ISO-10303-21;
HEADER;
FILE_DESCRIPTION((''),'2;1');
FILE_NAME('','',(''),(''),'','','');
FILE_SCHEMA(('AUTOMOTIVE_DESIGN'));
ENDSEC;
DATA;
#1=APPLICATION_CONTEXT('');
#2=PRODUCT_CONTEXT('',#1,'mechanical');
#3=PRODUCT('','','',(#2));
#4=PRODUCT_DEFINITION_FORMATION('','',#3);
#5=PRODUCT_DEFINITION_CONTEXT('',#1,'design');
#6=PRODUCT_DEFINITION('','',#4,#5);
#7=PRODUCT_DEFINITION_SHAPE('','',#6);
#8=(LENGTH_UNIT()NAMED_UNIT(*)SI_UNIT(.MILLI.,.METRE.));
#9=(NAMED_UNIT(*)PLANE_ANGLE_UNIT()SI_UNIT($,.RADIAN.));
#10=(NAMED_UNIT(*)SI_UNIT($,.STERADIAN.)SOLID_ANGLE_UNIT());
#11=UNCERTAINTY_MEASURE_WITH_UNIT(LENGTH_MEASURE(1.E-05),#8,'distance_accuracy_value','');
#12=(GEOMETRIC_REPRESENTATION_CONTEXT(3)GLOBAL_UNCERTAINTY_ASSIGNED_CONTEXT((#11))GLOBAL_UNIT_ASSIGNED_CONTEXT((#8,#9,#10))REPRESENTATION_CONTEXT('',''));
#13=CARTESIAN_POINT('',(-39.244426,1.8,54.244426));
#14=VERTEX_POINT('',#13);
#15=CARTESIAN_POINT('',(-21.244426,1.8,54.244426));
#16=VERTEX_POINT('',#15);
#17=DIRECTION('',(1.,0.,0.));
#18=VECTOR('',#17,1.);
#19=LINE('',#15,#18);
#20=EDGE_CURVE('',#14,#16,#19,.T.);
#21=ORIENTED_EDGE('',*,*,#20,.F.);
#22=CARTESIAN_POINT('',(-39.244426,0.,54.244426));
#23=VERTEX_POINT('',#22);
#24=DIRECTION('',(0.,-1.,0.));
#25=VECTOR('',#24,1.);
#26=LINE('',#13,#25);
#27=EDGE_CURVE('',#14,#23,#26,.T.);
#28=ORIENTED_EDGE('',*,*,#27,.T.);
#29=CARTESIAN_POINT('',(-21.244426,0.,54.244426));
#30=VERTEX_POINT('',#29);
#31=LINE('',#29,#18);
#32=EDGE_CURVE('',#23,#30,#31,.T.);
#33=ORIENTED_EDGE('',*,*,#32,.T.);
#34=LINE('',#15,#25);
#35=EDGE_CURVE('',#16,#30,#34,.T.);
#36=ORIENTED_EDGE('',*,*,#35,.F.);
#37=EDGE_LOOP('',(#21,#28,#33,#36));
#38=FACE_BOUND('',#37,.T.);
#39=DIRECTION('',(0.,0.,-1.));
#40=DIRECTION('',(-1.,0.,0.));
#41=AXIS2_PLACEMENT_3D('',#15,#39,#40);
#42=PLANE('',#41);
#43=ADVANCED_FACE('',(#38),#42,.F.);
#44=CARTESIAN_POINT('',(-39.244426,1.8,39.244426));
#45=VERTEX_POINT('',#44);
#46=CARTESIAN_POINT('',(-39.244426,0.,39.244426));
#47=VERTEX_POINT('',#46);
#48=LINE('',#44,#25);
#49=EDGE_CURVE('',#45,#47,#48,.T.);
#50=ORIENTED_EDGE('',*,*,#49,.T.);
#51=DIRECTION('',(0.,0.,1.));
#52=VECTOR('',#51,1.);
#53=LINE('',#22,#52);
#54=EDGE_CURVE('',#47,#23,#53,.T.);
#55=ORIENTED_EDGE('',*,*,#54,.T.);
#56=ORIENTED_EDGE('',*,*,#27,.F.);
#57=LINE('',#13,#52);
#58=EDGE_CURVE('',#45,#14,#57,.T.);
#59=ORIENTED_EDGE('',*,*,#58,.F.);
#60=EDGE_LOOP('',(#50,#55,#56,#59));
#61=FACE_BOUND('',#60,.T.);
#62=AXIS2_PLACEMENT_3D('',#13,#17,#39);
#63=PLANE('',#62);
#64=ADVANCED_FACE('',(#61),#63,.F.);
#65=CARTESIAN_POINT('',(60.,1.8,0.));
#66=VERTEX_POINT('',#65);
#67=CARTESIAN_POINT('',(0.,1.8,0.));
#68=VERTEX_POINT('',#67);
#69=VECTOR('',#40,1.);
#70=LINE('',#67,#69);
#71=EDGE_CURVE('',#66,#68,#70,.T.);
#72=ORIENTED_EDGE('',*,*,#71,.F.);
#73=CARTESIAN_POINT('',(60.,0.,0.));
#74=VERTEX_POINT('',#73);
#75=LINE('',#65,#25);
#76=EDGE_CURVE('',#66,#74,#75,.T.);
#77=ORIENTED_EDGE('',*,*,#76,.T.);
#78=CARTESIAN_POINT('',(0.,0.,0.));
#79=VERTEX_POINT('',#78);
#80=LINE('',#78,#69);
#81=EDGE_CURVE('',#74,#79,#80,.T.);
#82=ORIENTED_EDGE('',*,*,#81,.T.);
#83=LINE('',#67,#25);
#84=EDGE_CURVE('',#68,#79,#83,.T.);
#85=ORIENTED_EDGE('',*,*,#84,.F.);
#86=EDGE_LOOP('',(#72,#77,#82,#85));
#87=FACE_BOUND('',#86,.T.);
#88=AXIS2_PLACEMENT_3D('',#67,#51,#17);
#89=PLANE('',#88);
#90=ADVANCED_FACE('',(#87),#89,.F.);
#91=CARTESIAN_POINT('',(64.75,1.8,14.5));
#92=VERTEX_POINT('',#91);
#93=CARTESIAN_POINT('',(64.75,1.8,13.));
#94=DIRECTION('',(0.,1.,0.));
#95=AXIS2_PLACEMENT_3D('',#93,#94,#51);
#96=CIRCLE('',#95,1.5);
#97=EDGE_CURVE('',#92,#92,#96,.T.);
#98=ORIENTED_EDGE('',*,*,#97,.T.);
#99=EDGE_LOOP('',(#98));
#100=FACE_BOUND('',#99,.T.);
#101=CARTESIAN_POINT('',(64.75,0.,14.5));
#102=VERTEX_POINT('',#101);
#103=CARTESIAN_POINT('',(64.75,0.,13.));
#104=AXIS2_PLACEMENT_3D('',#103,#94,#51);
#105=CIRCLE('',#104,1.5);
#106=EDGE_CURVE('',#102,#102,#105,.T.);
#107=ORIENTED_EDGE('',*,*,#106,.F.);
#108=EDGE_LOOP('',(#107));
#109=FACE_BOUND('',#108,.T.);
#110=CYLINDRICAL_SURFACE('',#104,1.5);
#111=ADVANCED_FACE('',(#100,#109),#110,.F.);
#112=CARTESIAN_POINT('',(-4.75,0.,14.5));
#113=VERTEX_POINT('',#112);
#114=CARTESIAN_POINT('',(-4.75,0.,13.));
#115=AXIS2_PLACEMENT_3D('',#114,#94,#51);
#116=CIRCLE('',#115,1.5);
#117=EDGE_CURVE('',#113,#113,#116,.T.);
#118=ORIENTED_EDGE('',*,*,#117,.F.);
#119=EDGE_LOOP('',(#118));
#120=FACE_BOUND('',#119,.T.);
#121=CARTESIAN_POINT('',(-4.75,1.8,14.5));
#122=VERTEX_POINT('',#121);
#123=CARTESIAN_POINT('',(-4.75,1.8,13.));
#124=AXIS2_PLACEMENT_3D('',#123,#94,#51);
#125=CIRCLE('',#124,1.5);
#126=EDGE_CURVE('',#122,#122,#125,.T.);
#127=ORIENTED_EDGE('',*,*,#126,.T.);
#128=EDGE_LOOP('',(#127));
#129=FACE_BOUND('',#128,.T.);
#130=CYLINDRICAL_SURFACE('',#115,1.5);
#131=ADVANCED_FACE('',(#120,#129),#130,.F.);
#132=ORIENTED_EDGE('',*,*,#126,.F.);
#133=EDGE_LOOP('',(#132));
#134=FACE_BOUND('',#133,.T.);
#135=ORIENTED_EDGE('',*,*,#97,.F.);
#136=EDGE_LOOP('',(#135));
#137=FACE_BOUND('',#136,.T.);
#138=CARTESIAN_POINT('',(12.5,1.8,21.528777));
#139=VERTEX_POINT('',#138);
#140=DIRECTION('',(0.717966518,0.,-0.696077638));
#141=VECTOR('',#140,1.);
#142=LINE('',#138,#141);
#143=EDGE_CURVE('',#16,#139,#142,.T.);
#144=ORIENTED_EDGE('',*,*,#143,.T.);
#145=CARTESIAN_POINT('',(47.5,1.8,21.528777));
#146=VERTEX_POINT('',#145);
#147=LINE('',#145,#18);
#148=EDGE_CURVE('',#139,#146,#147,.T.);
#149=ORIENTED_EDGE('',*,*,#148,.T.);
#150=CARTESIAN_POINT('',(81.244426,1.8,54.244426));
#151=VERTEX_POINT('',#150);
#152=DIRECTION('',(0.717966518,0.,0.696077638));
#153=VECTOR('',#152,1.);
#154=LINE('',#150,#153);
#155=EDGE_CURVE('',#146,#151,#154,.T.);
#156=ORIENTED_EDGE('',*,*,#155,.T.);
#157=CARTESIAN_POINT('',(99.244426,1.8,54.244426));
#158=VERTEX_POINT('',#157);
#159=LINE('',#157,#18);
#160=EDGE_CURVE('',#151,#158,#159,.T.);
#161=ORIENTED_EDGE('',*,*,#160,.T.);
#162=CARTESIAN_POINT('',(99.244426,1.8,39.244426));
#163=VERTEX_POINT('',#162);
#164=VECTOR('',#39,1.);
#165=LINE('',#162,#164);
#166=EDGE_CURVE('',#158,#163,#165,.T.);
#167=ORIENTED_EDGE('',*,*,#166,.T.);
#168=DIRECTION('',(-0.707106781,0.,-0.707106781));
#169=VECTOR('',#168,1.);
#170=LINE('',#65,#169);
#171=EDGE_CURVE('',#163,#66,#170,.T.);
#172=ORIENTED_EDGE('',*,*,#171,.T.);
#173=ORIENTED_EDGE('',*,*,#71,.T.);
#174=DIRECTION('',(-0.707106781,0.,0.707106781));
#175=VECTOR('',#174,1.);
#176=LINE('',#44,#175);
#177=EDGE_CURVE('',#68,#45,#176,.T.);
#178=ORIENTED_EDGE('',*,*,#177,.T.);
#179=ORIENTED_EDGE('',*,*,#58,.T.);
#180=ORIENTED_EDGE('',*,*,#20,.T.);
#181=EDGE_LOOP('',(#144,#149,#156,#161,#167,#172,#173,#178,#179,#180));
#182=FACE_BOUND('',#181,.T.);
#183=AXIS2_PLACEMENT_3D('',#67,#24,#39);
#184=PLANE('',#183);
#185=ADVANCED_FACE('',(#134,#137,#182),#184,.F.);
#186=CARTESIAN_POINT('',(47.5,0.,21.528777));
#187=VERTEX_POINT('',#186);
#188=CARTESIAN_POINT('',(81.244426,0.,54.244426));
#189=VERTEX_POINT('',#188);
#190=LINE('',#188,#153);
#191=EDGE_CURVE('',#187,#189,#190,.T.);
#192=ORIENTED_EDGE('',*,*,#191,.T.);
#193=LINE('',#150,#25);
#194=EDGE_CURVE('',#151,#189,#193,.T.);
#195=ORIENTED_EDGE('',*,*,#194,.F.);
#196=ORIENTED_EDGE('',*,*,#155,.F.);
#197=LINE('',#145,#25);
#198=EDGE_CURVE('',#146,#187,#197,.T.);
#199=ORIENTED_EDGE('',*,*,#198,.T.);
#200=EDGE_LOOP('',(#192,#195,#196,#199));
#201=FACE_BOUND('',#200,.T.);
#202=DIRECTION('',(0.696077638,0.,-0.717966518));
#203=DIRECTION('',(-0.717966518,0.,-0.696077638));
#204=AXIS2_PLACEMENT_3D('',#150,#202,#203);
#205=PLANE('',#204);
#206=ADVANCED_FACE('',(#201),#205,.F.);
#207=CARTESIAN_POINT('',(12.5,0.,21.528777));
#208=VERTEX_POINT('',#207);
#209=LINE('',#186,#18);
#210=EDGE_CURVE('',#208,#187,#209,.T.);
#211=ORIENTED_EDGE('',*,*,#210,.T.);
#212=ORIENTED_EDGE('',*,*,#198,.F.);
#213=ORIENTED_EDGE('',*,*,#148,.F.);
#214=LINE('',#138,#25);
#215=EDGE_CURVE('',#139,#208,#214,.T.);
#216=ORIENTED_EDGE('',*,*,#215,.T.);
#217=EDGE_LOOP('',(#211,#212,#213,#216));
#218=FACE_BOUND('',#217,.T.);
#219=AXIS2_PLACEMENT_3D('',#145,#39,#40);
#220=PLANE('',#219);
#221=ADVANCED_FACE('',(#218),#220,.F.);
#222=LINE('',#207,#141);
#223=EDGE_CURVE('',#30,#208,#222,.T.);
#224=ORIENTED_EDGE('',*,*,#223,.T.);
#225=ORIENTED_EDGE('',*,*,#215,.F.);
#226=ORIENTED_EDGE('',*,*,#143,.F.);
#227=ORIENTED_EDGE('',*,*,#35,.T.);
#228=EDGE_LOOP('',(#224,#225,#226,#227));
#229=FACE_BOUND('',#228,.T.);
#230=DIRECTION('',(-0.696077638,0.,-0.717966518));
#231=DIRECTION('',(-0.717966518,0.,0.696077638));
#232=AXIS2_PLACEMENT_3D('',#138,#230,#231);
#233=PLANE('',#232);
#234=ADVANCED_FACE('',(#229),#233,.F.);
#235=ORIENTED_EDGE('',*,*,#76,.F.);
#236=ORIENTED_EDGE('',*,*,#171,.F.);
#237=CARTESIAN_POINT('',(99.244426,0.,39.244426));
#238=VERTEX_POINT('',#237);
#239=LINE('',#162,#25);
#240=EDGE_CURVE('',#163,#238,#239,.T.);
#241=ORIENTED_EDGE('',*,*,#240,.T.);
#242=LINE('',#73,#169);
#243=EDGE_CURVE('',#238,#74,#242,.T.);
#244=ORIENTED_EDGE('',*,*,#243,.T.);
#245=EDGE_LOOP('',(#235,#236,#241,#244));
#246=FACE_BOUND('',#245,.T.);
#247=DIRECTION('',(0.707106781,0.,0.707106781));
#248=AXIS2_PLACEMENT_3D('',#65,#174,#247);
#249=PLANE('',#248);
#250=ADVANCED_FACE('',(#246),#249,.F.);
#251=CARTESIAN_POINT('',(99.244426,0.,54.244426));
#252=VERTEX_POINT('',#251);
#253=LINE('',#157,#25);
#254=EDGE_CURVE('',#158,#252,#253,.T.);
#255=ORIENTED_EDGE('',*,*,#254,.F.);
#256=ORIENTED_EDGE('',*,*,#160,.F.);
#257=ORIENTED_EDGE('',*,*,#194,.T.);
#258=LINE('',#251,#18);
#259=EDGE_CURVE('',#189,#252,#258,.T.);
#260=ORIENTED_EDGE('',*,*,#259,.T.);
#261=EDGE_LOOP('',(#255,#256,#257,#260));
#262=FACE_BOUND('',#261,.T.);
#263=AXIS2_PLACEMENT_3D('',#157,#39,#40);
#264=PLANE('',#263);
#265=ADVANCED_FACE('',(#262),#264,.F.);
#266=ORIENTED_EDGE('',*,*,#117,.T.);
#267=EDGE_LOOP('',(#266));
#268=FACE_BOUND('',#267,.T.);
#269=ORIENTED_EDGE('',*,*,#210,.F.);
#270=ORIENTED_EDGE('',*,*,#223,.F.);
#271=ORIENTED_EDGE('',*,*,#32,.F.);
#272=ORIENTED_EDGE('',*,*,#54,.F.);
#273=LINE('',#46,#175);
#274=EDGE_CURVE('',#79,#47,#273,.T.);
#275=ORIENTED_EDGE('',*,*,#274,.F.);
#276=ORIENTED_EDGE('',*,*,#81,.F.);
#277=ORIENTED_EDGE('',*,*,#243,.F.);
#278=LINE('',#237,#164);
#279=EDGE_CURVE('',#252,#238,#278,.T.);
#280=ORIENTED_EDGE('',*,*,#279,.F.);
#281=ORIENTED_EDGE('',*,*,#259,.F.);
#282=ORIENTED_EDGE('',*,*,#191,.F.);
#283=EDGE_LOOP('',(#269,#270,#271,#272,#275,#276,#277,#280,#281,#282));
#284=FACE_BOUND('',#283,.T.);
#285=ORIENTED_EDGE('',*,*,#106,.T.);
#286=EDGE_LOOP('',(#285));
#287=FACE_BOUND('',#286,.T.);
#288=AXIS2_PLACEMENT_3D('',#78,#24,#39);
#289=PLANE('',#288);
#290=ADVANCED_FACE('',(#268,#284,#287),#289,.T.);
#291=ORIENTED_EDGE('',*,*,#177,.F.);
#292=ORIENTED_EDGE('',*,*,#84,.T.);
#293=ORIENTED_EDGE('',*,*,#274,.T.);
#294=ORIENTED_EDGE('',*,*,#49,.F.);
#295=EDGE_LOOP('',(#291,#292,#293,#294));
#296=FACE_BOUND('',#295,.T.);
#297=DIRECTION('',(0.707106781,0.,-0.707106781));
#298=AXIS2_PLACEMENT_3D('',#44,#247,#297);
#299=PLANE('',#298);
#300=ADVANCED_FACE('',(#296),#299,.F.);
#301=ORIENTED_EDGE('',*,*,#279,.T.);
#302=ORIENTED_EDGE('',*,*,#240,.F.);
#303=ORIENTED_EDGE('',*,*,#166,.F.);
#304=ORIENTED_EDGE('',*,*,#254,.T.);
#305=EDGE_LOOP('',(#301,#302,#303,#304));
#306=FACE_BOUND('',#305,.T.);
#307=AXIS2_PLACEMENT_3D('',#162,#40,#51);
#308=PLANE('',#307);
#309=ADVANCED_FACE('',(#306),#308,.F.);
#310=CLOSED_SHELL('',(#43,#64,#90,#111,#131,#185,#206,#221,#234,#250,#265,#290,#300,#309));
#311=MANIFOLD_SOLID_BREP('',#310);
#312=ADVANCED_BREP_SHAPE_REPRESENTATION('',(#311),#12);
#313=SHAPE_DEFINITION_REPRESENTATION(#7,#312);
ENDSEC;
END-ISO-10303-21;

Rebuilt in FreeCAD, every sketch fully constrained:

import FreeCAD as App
import Part
import Sketcher


def add_polygon(sketch, points):
    """Adds a closed chain of lines whose ends are joined by coincident constraints."""
    first, n = sketch.GeometryCount, len(points)
    for a, b in zip(points, points[1:] + points[:1]):
        sketch.addGeometry(Part.LineSegment(App.Vector(*a, 0), App.Vector(*b, 0)), False)
    for i in range(n):
        sketch.addConstraint(Sketcher.Constraint("Coincident", first + i, 2, first + (i + 1) % n, 1))

doc = App.newDocument("Part")
params = doc.addObject("Spreadsheet::Sheet", "Params")
for row, (alias, value) in enumerate([
    ("sketch1_width", "60 mm"),
    ("sketch1_width2", "18 mm"),
    ("sketch1_width3", "35 mm"),
    ("sketch1_height", "15 mm"),
    ("sketch1_length", "47 mm"),
    ("pad1_length", "1.8 mm"),
    ("sketch2_diameter", "3 mm"),
    ("pocket1_length", "1.8 mm"),
], start=1):
    params.set(f"A{row}", alias)
    params.set(f"B{row}", "=" + value)
    params.setAlias(f"B{row}", alias)

body = doc.addObject("PartDesign::Body", "Body")

sketch1 = body.newObject("Sketcher::SketchObject", "Sketch")
sketch1.AttachmentSupport = (doc.getObject("XZ_Plane"), [""])
sketch1.MapMode = "FlatFace"
add_polygon(sketch1, [(60, 0), (0, 0), (-39, 39), (-39, 54), (-21, 54), (12, 22), (48, 22), (81, 54), (99, 54), (99, 39)])
sketch1.addConstraint([
    Sketcher.Constraint("Horizontal", 0),
    Sketcher.Constraint("Vertical", 2),
    Sketcher.Constraint("Horizontal", 3),
    Sketcher.Constraint("Horizontal", 5),
    Sketcher.Constraint("Horizontal", 7),
    Sketcher.Constraint("Vertical", 8),
    Sketcher.Constraint("Coincident", 0, 2, -1, 1),
    Sketcher.Constraint("Perpendicular", 1, 9),
    Sketcher.Constraint("Horizontal", 3, 2, 6, 2),
    Sketcher.Constraint("Horizontal", 1, 2, 8, 2),
    Sketcher.Constraint("Equal", 3, 7),
    Sketcher.Constraint("Equal", 4, 6),
    Sketcher.Constraint("Equal", 1, 9),
    Sketcher.Constraint("DistanceX", 0, 2, 0, 1, 60.0),
    Sketcher.Constraint("DistanceX", 3, 1, 3, 2, 18.0),
    Sketcher.Constraint("DistanceX", 5, 1, 5, 2, 35.0),
    Sketcher.Constraint("DistanceY", 2, 1, 2, 2, 15.0),
    Sketcher.Constraint("Distance", 4, 47.0),
    Sketcher.Constraint("Distance", 1, 55.5),
])
sketch1.setExpression("Constraints[23]", "Params.sketch1_width")
sketch1.setExpression("Constraints[24]", "Params.sketch1_width2")
sketch1.setExpression("Constraints[25]", "Params.sketch1_width3")
sketch1.setExpression("Constraints[26]", "Params.sketch1_height")
sketch1.setExpression("Constraints[27]", "Params.sketch1_length")
pad1 = body.newObject("PartDesign::Pad", "Pad")
pad1.Profile = sketch1
pad1.setExpression("Length", "Params.pad1_length")
pad1.Reversed = True

sketch2 = body.newObject("Sketcher::SketchObject", "Sketch001")
sketch2.AttachmentSupport = (doc.getObject("XZ_Plane"), [""])
sketch2.MapMode = "FlatFace"
sketch2.AttachmentOffset = App.Placement(App.Vector(0, 0, -1.8), App.Rotation())
sketch2.addGeometry([
    Part.Circle(App.Vector(-4.8, 13, 0), App.Vector(0, 0, 1), 1.5),
    Part.Circle(App.Vector(64.8, 13, 0), App.Vector(0, 0, 1), 1.5),
], False)
sketch2.addConstraint([
    Sketcher.Constraint("Equal", 0, 1),
    Sketcher.Constraint("Horizontal", 0, 3, 1, 3),
    Sketcher.Constraint("Diameter", 0, 3.0),
    Sketcher.Constraint("DistanceY", -1, 1, 0, 3, 13.0),
    Sketcher.Constraint("DistanceX", 0, 3, 1, 3, 69.5),
    Sketcher.Constraint("DistanceX", 0, 3, -1, 1, 4.75),
])
sketch2.setExpression("Constraints[2]", "Params.sketch2_diameter")
pocket1 = body.newObject("PartDesign::Pocket", "Pocket")
pocket1.Profile = sketch2
pocket1.setExpression("Length", "Params.pocket1_length")
pocket1.Reversed = True

doc.recompute()
